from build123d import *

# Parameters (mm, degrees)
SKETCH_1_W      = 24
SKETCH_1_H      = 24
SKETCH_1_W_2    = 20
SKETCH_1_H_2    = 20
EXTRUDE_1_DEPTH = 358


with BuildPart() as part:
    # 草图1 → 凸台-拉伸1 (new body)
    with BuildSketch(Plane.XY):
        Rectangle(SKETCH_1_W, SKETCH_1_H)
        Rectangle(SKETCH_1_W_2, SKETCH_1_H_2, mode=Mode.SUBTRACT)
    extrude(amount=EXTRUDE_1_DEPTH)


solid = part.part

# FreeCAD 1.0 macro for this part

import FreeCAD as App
import Part
import Sketcher
Q = App.Units.Quantity

doc = App.newDocument("Part")
body = doc.addObject("PartDesign::Body", "Body")

# Sketch on XY plane
sketch1 = doc.addObject("Sketcher::SketchObject", "Sketch")
body.addObject(sketch1)
sketch1.AttachmentSupport = (doc.XY_Plane, [""])
sketch1.MapMode = "FlatFace"
sketch1.addGeometry([
    Part.LineSegment(App.Vector(-12, 12, 0), App.Vector(-12, -12, 0)),  # 0
    Part.LineSegment(App.Vector(-12, -12, 0), App.Vector(12, -12, 0)),  # 1
    Part.LineSegment(App.Vector(12, -12, 0), App.Vector(12, 12, 0)),  # 2
    Part.LineSegment(App.Vector(12, 12, 0), App.Vector(-12, 12, 0)),  # 3
    Part.LineSegment(App.Vector(10, -10, 0), App.Vector(-10, -10, 0)),  # 4
    Part.LineSegment(App.Vector(-10, -10, 0), App.Vector(-10, 10, 0)),  # 5
    Part.LineSegment(App.Vector(-10, 10, 0), App.Vector(10, 10, 0)),  # 6
    Part.LineSegment(App.Vector(10, 10, 0), App.Vector(10, -10, 0)),  # 7
], False)
sketch1.addConstraint([
    Sketcher.Constraint("Coincident", 0, 2, 1, 1),
    Sketcher.Constraint("Coincident", 1, 2, 2, 1),
    Sketcher.Constraint("Coincident", 2, 2, 3, 1),
    Sketcher.Constraint("Coincident", 3, 2, 0, 1),
    Sketcher.Constraint("Coincident", 4, 2, 5, 1),
    Sketcher.Constraint("Coincident", 5, 2, 6, 1),
    Sketcher.Constraint("Coincident", 6, 2, 7, 1),
    Sketcher.Constraint("Coincident", 7, 2, 4, 1),
    Sketcher.Constraint("Vertical", 0),
    Sketcher.Constraint("Horizontal", 1),
    Sketcher.Constraint("Vertical", 2),
    Sketcher.Constraint("Horizontal", 3),
    Sketcher.Constraint("Horizontal", 4),
    Sketcher.Constraint("Vertical", 5),
    Sketcher.Constraint("Horizontal", 6),
    Sketcher.Constraint("Vertical", 7),
    Sketcher.Constraint("Symmetric", 0, 2, 2, 2, -1, 1),
    Sketcher.Constraint("Symmetric", 4, 2, 6, 2, -1, 1),
    Sketcher.Constraint("Equal", 3, 0),
    Sketcher.Constraint("Equal", 6, 5),
    Sketcher.Constraint("DistanceX", 1, 1, 1, 2, Q("24 mm")),
    Sketcher.Constraint("DistanceX", 4, 2, 4, 1, Q("20 mm")),
])
pad1 = doc.addObject("PartDesign::Pad", "Pad")
body.addObject(pad1)
pad1.Profile = sketch1
pad1.Length = 358

doc.recompute()
